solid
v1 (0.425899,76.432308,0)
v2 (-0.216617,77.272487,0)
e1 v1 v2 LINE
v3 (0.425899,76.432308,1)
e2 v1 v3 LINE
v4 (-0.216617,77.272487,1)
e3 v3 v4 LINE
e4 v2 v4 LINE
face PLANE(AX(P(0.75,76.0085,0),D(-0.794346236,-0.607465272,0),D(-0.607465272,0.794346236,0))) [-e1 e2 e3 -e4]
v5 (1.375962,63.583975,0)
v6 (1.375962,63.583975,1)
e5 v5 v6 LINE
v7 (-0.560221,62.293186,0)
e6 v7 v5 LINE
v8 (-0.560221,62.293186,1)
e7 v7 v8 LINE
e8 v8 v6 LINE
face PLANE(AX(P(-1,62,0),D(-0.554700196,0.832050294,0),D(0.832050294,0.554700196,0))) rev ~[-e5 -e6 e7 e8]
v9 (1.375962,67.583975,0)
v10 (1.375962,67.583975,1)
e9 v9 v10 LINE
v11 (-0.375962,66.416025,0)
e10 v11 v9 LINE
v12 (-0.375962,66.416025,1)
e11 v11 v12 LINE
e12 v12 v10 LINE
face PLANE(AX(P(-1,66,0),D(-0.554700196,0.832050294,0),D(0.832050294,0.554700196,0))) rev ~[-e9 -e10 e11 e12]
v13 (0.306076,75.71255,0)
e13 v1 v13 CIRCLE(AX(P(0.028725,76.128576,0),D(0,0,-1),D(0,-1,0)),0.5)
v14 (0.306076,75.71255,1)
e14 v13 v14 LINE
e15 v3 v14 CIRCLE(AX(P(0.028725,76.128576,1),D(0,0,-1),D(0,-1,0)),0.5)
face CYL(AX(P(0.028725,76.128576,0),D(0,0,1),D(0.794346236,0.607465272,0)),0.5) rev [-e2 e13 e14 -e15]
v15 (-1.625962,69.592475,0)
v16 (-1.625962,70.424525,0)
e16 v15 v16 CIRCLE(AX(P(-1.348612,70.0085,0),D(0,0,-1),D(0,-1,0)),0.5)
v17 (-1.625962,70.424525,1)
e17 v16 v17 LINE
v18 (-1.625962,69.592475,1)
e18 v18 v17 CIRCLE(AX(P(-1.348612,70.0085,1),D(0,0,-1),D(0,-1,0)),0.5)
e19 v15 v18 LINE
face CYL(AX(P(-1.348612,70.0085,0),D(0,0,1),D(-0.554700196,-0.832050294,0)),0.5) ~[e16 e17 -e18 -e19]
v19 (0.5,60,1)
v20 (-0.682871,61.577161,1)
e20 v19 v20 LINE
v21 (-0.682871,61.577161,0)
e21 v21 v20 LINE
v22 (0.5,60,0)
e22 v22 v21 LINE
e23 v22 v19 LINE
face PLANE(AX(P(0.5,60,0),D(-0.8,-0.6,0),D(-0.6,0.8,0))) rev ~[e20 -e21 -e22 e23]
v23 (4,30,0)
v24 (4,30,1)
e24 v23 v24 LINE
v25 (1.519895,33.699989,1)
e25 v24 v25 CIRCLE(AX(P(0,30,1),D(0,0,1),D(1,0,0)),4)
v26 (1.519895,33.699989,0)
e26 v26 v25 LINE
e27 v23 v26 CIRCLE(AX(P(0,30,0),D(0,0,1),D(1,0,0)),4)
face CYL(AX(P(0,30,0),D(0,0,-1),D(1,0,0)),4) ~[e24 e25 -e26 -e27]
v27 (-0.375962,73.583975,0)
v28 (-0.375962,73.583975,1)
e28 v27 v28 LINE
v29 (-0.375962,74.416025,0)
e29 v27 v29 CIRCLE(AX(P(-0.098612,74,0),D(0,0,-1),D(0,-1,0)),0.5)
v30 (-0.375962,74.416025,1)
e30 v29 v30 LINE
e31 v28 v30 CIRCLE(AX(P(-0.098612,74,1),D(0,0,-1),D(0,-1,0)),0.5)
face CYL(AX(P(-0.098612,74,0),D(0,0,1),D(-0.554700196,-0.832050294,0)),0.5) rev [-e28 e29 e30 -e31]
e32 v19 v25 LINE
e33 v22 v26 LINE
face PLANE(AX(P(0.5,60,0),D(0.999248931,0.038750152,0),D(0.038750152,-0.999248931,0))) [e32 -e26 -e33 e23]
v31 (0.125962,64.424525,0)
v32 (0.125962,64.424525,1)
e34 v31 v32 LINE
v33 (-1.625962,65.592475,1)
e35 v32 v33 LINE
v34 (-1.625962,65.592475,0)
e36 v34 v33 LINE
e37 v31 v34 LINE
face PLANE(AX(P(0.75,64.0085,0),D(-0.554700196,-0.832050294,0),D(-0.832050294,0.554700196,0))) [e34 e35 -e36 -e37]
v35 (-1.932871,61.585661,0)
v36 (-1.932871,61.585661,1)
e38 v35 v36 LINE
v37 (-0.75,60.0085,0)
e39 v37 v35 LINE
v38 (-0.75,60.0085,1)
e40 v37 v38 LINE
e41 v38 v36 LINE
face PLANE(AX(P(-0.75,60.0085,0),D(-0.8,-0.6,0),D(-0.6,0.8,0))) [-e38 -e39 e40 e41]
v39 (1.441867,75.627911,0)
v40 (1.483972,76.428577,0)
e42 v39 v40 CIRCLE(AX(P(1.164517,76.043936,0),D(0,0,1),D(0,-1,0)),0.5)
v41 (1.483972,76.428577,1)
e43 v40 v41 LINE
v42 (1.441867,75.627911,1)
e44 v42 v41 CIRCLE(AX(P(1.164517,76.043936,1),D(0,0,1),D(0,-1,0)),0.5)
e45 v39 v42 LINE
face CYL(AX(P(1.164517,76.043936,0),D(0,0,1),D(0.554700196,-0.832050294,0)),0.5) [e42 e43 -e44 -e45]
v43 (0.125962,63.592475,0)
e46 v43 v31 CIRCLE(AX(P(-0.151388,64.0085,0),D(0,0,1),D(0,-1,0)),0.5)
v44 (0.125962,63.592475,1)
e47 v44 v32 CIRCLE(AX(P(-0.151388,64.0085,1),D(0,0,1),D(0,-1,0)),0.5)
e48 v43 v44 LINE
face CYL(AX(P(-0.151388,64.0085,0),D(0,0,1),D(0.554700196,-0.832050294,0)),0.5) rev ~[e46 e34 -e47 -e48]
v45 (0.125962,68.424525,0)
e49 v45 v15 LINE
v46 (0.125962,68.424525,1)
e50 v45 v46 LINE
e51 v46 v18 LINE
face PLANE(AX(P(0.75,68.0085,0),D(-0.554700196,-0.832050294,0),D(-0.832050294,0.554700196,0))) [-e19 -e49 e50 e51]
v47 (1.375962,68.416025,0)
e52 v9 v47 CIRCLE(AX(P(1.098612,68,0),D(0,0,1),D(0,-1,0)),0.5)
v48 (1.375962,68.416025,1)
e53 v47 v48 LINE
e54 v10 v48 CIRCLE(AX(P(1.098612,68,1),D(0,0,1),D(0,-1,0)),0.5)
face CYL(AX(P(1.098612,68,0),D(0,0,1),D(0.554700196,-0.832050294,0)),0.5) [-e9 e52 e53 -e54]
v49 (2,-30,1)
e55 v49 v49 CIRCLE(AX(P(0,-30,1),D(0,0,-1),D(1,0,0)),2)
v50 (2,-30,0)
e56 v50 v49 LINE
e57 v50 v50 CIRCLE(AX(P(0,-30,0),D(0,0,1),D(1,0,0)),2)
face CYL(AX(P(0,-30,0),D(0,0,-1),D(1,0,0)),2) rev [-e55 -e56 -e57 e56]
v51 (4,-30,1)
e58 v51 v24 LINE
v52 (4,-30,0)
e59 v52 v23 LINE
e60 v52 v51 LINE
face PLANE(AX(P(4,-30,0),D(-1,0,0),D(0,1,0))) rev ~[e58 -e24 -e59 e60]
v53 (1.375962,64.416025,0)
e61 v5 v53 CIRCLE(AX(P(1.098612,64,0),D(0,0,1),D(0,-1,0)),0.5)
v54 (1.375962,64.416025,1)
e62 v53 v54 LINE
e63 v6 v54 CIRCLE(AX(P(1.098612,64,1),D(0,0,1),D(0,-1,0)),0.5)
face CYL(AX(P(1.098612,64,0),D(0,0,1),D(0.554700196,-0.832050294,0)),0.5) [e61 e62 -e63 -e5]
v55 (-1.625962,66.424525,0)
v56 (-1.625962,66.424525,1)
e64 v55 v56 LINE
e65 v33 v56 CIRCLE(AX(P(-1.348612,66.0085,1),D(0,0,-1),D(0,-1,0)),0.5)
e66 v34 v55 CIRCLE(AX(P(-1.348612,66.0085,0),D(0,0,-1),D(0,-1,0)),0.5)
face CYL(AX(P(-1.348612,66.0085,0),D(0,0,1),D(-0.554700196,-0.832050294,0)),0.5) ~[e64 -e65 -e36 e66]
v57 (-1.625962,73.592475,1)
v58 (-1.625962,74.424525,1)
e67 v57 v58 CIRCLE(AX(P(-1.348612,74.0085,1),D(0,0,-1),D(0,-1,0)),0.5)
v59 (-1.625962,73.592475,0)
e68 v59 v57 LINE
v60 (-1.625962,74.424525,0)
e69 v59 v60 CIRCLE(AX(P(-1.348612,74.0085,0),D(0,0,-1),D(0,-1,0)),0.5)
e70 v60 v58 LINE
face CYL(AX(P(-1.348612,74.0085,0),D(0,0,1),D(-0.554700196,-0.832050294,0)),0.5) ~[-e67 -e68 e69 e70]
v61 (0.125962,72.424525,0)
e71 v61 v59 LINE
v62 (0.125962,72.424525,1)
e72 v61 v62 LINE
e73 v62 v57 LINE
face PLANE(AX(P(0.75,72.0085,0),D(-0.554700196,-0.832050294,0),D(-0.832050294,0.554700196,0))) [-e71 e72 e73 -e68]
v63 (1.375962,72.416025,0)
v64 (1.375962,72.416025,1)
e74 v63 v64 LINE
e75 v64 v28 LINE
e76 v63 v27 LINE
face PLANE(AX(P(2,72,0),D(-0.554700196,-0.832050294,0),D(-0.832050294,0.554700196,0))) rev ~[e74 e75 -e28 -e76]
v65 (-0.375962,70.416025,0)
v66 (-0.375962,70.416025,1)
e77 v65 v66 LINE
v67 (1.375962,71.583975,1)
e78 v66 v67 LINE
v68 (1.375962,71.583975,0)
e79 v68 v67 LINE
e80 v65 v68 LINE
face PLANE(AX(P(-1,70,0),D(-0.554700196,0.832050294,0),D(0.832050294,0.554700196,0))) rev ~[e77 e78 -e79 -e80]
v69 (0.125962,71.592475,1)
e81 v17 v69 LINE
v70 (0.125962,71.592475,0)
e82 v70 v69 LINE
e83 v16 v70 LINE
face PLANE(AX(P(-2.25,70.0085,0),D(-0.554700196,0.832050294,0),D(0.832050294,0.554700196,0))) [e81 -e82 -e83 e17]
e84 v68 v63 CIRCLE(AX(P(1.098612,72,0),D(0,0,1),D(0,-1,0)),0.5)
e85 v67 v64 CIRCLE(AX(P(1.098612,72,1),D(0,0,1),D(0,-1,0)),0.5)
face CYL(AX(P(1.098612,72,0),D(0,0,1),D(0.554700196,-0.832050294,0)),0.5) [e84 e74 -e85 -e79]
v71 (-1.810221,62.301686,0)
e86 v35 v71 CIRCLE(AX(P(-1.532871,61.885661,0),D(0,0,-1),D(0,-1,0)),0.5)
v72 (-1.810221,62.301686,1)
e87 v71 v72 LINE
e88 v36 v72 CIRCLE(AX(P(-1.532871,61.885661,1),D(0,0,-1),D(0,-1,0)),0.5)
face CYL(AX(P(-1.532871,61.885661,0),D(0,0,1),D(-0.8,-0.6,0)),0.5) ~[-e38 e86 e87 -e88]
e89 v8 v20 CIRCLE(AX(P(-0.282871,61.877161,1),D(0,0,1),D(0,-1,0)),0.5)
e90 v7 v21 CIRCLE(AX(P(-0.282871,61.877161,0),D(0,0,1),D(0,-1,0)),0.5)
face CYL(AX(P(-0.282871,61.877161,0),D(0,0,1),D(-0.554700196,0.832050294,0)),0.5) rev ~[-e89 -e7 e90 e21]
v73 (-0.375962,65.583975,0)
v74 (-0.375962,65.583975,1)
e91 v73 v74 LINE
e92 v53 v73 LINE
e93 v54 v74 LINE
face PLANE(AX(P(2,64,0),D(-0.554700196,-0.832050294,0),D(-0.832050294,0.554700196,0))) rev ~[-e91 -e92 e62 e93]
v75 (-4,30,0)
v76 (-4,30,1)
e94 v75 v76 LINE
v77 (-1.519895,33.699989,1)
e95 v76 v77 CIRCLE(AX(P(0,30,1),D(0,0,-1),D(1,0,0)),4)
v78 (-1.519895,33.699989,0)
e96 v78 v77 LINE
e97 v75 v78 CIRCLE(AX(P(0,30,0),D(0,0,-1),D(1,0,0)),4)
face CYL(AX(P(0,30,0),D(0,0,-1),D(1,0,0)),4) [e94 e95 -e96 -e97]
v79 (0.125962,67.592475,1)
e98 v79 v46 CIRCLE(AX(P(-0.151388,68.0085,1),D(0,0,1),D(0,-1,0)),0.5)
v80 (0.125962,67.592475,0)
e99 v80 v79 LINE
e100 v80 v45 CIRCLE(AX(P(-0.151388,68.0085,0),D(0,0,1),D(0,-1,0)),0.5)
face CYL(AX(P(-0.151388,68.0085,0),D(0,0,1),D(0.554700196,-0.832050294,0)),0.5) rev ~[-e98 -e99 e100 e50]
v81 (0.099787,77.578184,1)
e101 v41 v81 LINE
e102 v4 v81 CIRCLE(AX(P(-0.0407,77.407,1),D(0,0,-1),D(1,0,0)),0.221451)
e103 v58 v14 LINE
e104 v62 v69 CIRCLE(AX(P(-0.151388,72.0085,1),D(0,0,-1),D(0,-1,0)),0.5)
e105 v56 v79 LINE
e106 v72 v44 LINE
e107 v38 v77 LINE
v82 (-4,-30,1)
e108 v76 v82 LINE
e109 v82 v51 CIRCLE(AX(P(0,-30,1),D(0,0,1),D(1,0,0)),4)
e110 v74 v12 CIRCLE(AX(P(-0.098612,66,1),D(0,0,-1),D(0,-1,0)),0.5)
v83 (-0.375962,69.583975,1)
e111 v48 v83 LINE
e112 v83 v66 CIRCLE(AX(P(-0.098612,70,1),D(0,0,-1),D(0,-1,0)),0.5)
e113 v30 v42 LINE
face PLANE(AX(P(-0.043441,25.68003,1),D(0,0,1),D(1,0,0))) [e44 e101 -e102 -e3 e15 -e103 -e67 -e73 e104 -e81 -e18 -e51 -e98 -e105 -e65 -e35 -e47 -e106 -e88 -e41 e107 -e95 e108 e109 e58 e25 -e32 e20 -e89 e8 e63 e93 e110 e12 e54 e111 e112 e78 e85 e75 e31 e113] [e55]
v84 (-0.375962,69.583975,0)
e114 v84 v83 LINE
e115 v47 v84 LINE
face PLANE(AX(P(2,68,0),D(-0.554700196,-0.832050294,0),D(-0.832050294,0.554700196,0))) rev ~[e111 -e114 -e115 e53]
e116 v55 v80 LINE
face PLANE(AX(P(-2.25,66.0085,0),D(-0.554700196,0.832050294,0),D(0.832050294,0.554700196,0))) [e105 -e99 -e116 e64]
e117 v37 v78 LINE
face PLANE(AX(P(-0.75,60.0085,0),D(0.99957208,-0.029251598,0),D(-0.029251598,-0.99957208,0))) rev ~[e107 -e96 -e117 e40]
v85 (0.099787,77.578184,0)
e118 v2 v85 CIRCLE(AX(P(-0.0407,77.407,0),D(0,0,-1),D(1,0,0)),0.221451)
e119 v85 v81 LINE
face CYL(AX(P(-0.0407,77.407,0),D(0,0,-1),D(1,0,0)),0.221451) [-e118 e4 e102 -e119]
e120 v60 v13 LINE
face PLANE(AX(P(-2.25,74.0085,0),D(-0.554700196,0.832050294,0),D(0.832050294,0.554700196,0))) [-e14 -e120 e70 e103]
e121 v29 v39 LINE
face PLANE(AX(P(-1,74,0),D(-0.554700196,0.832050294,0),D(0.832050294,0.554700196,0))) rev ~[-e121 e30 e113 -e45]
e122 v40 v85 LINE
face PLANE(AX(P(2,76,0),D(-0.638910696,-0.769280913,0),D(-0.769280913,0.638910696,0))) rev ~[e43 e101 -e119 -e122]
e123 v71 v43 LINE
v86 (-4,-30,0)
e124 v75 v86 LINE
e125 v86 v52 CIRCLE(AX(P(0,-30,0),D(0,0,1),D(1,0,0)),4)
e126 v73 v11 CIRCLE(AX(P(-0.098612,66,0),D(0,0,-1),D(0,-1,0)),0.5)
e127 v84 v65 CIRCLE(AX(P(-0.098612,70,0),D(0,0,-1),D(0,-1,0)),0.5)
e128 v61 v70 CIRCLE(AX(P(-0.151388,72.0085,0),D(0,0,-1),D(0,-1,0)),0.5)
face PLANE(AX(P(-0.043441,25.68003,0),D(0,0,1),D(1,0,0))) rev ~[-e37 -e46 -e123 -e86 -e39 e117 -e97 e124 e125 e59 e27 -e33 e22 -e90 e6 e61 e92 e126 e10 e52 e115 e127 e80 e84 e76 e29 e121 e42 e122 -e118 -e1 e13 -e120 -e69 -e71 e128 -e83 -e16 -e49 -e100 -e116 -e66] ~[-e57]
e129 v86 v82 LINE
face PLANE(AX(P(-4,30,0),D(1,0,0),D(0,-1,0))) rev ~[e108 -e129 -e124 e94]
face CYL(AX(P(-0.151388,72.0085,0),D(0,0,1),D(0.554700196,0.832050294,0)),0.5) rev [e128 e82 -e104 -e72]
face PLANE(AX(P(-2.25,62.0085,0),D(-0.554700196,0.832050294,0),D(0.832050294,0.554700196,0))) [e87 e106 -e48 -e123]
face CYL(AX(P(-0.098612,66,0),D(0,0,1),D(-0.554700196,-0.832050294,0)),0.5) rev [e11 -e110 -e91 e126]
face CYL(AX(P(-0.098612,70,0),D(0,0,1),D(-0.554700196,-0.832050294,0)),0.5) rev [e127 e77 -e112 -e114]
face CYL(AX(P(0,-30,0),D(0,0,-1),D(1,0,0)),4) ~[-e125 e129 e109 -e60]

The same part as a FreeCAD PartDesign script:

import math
import FreeCAD as App
import Part
import Sketcher
from FreeCAD import Vector
Q = App.Units.Quantity


def edges_at(feature, points):
    """Names of the edges that pass closest to the given points."""
    edges = feature.Shape.Edges
    near = lambda p: min(range(len(edges)), key=lambda i: edges[i].distToShape(Part.Vertex(*p))[0])
    return sorted({f"Edge{near(p) + 1}" for p in points})

doc = App.newDocument("Part")
body = doc.addObject("PartDesign::Body", "Body")

# Sketch on XY plane
sketch1 = body.newObject("Sketcher::SketchObject", "Sketch")
sketch1.AttachmentSupport = (doc.getObject("XY_Plane"), [""])
sketch1.MapMode = "FlatFace"
sketch1.addGeometry([
    Part.ArcOfCircle(Part.Circle(Vector(0, -30, 0), Vector(0, 0, 1), 4), math.radians(180), math.radians(360)),  # 0
    Part.LineSegment(Vector(4, -30, 0), Vector(4, 30, 0)),  # 1
    Part.ArcOfCircle(Part.Circle(Vector(0, 30, 0), Vector(0, 0, 1), 4), math.radians(0), math.radians(67.667937)),  # 2
    Part.LineSegment(Vector(1.5199, 33.7, 0), Vector(0.5, 60, 0)),  # 3
    Part.LineSegment(Vector(0.5, 60, 0), Vector(-1, 62, 0)),  # 4
    Part.LineSegment(Vector(-1, 62, 0), Vector(2, 64, 0)),  # 5
    Part.LineSegment(Vector(2, 64, 0), Vector(-1, 66, 0)),  # 6
    Part.LineSegment(Vector(-1, 66, 0), Vector(2, 68, 0)),  # 7
    Part.LineSegment(Vector(2, 68, 0), Vector(-1, 70, 0)),  # 8
    Part.LineSegment(Vector(-1, 70, 0), Vector(2, 72, 0)),  # 9
    Part.LineSegment(Vector(2, 72, 0), Vector(-1, 74, 0)),  # 10
    Part.LineSegment(Vector(-1, 74, 0), Vector(2, 76, 0)),  # 11
    Part.LineSegment(Vector(2, 76, 0), Vector(0.0998, 77.5782, 0)),  # 12
    Part.ArcOfCircle(Part.Circle(Vector(-0.0407, 77.407, 0), Vector(0, 0, 1), 0.22143), math.radians(50.625042), math.radians(217.402938)),  # 13
    Part.LineSegment(Vector(-0.2166, 77.2725, 0), Vector(0.75, 76.0085, 0)),  # 14
    Part.LineSegment(Vector(0.75, 76.0085, 0), Vector(-2.25, 74.0085, 0)),  # 15
    Part.LineSegment(Vector(-2.25, 74.0085, 0), Vector(0.75, 72.0085, 0)),  # 16
    Part.LineSegment(Vector(0.75, 72.0085, 0), Vector(-2.25, 70.0085, 0)),  # 17
    Part.LineSegment(Vector(-2.25, 70.0085, 0), Vector(0.75, 68.0085, 0)),  # 18
    Part.LineSegment(Vector(0.75, 68.0085, 0), Vector(-2.25, 66.0085, 0)),  # 19
    Part.LineSegment(Vector(-2.25, 66.0085, 0), Vector(0.75, 64.0085, 0)),  # 20
    Part.LineSegment(Vector(0.75, 64.0085, 0), Vector(-2.25, 62.0085, 0)),  # 21
    Part.LineSegment(Vector(-2.25, 62.0085, 0), Vector(-0.75, 60.0085, 0)),  # 22
    Part.LineSegment(Vector(-0.75, 60.0085, 0), Vector(-1.5199, 33.7, 0)),  # 23
    Part.ArcOfCircle(Part.Circle(Vector(0, 30, 0), Vector(0, 0, 1), 4), math.radians(112.332063), math.radians(180)),  # 24
    Part.LineSegment(Vector(-4, 30, 0), Vector(-4, -30, 0)),  # 25
], False)
sketch1.addConstraint([
    Sketcher.Constraint("Tangent", 0, 2, 1, 1),
    Sketcher.Constraint("Tangent", 1, 2, 2, 1),
    Sketcher.Constraint("Coincident", 2, 2, 3, 1),
    Sketcher.Constraint("Coincident", 3, 2, 4, 1),
    Sketcher.Constraint("Coincident", 4, 2, 5, 1),
    Sketcher.Constraint("Coincident", 5, 2, 6, 1),
    Sketcher.Constraint("Coincident", 6, 2, 7, 1),
    Sketcher.Constraint("Coincident", 7, 2, 8, 1),
    Sketcher.Constraint("Coincident", 8, 2, 9, 1),
    Sketcher.Constraint("Coincident", 9, 2, 10, 1),
    Sketcher.Constraint("Coincident", 10, 2, 11, 1),
    Sketcher.Constraint("Coincident", 11, 2, 12, 1),
    Sketcher.Constraint("Coincident", 12, 2, 13, 1),
    Sketcher.Constraint("Tangent", 13, 2, 14, 1),
    Sketcher.Constraint("Coincident", 14, 2, 15, 1),
    Sketcher.Constraint("Coincident", 15, 2, 16, 1),
    Sketcher.Constraint("Coincident", 16, 2, 17, 1),
    Sketcher.Constraint("Coincident", 17, 2, 18, 1),
    Sketcher.Constraint("Coincident", 18, 2, 19, 1),
    Sketcher.Constraint("Coincident", 19, 2, 20, 1),
    Sketcher.Constraint("Coincident", 20, 2, 21, 1),
    Sketcher.Constraint("Coincident", 21, 2, 22, 1),
    Sketcher.Constraint("Coincident", 22, 2, 23, 1),
    Sketcher.Constraint("Coincident", 23, 2, 24, 1),
    Sketcher.Constraint("Tangent", 24, 2, 25, 1),
    Sketcher.Constraint("Tangent", 25, 2, 0, 1),
    Sketcher.Constraint("Vertical", 1),
    Sketcher.Constraint("Vertical", 25),
    Sketcher.Constraint("Coincident", 24, 3, 2, 3),
    Sketcher.Constraint("Equal", 0, 2),
    Sketcher.Constraint("Symmetric", 0, 3, 2, 3, -1, 1),
    Sketcher.Constraint("Parallel", 5, 7),
    Sketcher.Constraint("Parallel", 6, 8),
    Sketcher.Constraint("Parallel", 7, 9),
    Sketcher.Constraint("Parallel", 8, 10),
    Sketcher.Constraint("Parallel", 9, 11),
    Sketcher.Constraint("Parallel", 11, 15),
    Sketcher.Constraint("Parallel", 10, 16),
    Sketcher.Constraint("Parallel", 15, 17),
    Sketcher.Constraint("Parallel", 16, 18),
    Sketcher.Constraint("Parallel", 17, 19),
    Sketcher.Constraint("Parallel", 18, 20),
    Sketcher.Constraint("Parallel", 19, 21),
    Sketcher.Constraint("Parallel", 4, 22),
    Sketcher.Constraint("Horizontal", 2, 2, 23, 2),
    Sketcher.Constraint("Vertical", 4, 2, 6, 2),
    Sketcher.Constraint("Vertical", 5, 2, 7, 2),
    Sketcher.Constraint("Vertical", 6, 2, 8, 2),
    Sketcher.Constraint("Vertical", 7, 2, 9, 2),
    Sketcher.Constraint("Vertical", 8, 2, 10, 2),
    Sketcher.Constraint("Vertical", 9, 2, 11, 2),
    Sketcher.Constraint("Vertical", 14, 2, 16, 2),
    Sketcher.Constraint("Vertical", 15, 2, 17, 2),
    Sketcher.Constraint("Vertical", 16, 2, 18, 2),
    Sketcher.Constraint("Vertical", 17, 2, 19, 2),
    Sketcher.Constraint("Vertical", 18, 2, 20, 2),
    Sketcher.Constraint("Vertical", 19, 2, 21, 2),
    Sketcher.Constraint("Equal", 5, 6),
    Sketcher.Constraint("Equal", 11, 15),
    Sketcher.Constraint("Equal", 4, 22),
    Sketcher.Constraint("Equal", 3, 23),
    Sketcher.Constraint("Radius", 0, Q("4 mm")),
    Sketcher.Constraint("DistanceY", 3, 2, 5, 2, Q("4 mm")),
    Sketcher.Constraint("DistanceY", 4, 2, 6, 2, Q("4 mm")),
    Sketcher.Constraint("DistanceX", -1, 1, 3, 2, Q("0.5 mm")),
    Sketcher.Constraint("DistanceY", 1, 1, 1, 2, Q("60 mm")),
    Sketcher.Constraint("DistanceY", -1, 1, 3, 2, Q("60 mm")),
    Sketcher.Constraint("DistanceX", 4, 2, -1, 1, Q("1 mm")),
    Sketcher.Constraint("DistanceX", -1, 1, 5, 2, Q("2 mm")),
    Sketcher.Constraint("DistanceY", -1, 1, 2, 2, Q("33.7 mm")),
    Sketcher.Constraint("Angle", 12, Q("140.2889 deg")),
    Sketcher.Constraint("Radius", 13, Q("0.2214 mm")),
    Sketcher.Constraint("Distance", 12, Q("2.47 mm")),
    Sketcher.Constraint("DistanceX", -1, 1, 14, 2, Q("0.75 mm")),
    Sketcher.Constraint("DistanceY", -1, 1, 13, 3, Q("77.407 mm")),
])
pad1 = body.newObject("PartDesign::Pad", "Pad")
pad1.Profile = sketch1
pad1.Length = 1

# Sketch on XY plane
sketch2 = body.newObject("Sketcher::SketchObject", "Sketch001")
sketch2.AttachmentSupport = (doc.getObject("XY_Plane"), [""])
sketch2.MapMode = "FlatFace"
sketch2.addGeometry(Part.Circle(Vector(0, -30, 0), Vector(0, 0, 1), 2), False)
sketch2.addConstraint([
    Sketcher.Constraint("PointOnObject", 0, 3, -2),
    Sketcher.Constraint("Diameter", 0, Q("4 mm")),
    Sketcher.Constraint("DistanceY", 0, 3, -1, 1, Q("30 mm")),
])
pocket1 = body.newObject("PartDesign::Pocket", "Pocket")
pocket1.Profile = sketch2
pocket1.Type = "UpToFirst"
pocket1.Reversed = True
doc.recompute()

fillet = body.newObject("PartDesign::Fillet", "Fillet")
fillet.Base = (pocket1, edges_at(pocket1, [
    (-2.25, 62.008, 0.5),
    (-2.25, 66.008, 0.5),
    (-2.25, 70.008, 0.5),
    (-2.25, 74.008, 0.5),
    (2, 64, 0.5),
    (2, 68, 0.5),
    (2, 72, 0.5),
    (2, 76, 0.5),
]))
fillet.Radius = 0.5
doc.recompute()

fillet2 = body.newObject("PartDesign::Fillet", "Fillet001")
fillet2.Base = (fillet, edges_at(fillet, [
    (0.75, 64.008, 0.5),
    (0.75, 72.008, 0.5),
    (0.75, 68.008, 0.5),
    (0.75, 76.008, 0.5),
    (-1, 74, 0.5),
    (-1, 70, 0.5),
    (-1, 66, 0.5),
    (-1, 62, 0.5),
]))
fillet2.Radius = 0.5

doc.recompute()
